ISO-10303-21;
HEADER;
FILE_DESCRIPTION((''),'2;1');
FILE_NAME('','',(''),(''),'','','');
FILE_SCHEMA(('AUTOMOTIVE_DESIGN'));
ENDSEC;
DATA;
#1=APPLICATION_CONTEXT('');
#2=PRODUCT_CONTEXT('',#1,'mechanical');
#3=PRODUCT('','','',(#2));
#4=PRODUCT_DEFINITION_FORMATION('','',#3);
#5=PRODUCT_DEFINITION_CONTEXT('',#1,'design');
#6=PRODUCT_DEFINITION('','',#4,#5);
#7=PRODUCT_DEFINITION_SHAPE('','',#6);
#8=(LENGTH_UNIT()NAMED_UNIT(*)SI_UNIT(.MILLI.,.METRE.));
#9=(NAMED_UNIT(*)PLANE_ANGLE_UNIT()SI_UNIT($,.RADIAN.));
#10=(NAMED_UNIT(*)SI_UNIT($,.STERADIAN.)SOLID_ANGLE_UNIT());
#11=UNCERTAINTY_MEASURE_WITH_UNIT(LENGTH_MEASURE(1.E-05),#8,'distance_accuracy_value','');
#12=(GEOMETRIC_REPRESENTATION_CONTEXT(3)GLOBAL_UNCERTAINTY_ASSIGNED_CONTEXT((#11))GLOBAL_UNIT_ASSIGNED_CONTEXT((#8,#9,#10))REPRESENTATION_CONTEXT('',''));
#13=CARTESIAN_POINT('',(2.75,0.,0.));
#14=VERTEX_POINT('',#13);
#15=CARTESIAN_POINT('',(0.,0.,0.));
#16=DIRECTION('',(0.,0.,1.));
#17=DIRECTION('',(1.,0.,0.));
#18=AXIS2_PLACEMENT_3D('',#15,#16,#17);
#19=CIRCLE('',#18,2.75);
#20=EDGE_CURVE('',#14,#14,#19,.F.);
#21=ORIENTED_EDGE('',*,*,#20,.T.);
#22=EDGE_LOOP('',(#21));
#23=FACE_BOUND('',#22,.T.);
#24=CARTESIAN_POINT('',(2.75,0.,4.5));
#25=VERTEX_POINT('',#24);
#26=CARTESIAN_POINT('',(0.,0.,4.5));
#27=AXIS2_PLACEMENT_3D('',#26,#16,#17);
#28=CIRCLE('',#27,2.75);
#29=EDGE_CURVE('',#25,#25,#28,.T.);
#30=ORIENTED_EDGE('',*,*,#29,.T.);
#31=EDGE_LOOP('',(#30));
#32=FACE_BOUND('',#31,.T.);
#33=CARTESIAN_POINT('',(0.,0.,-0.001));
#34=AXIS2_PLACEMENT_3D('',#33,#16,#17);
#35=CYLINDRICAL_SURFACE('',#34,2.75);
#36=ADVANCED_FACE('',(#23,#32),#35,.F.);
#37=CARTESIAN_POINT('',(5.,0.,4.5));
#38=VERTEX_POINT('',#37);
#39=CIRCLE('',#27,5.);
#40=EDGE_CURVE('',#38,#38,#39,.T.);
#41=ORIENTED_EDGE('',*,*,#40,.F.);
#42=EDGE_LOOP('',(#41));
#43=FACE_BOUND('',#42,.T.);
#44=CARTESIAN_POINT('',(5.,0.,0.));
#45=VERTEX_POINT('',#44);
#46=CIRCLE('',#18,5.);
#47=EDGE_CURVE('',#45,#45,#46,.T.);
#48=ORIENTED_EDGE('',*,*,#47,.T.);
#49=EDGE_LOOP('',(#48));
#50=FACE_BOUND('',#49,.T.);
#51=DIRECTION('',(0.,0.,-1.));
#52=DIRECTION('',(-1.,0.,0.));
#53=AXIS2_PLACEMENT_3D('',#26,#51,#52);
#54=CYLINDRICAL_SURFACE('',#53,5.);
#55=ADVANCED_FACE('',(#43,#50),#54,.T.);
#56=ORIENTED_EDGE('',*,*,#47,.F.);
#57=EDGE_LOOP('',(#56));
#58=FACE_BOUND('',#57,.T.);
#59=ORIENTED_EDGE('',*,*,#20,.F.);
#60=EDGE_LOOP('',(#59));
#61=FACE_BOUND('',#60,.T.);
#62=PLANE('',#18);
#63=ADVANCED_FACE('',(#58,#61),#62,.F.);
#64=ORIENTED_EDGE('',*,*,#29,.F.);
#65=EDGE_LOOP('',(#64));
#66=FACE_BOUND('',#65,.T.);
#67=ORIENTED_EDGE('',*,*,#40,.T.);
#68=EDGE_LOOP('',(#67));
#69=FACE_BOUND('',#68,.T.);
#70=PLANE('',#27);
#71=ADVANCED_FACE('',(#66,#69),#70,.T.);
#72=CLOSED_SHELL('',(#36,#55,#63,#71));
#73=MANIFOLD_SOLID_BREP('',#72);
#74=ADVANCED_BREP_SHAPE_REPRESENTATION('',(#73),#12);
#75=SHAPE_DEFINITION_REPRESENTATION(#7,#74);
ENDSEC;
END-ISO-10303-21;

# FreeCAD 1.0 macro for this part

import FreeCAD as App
import Part
import Sketcher
from FreeCAD import Vector

doc = App.newDocument("Part")
body = doc.addObject("PartDesign::Body", "Body")

# Sketch on XY plane
sketch1 = body.newObject("Sketcher::SketchObject", "Sketch")
sketch1.AttachmentSupport = (doc.getObject("XY_Plane"), [""])
sketch1.MapMode = "FlatFace"
sketch1.addGeometry(Part.Circle(Vector(0, 0, 0), Vector(0, 0, 1), 5), False)
sketch1.addConstraint(Sketcher.Constraint("Coincident", 0, 3, -1, 1))
sketch1.addConstraint(Sketcher.Constraint("Diameter", 0, 10.0))
pad1 = body.newObject("PartDesign::Pad", "Pad")
pad1.Profile = sketch1
pad1.Length = 4.5

# Sketch on XY plane
sketch2 = body.newObject("Sketcher::SketchObject", "Sketch001")
sketch2.AttachmentSupport = (doc.getObject("XY_Plane"), [""])
sketch2.MapMode = "FlatFace"
sketch2.AttachmentOffset = App.Placement(Vector(0, 0, 4.5), App.Rotation())
sketch2.addGeometry(Part.Circle(Vector(0, 0, 0), Vector(0, 0, 1), 2.8), False)
sketch2.addConstraint(Sketcher.Constraint("Coincident", 0, 3, -1, 1))
sketch2.addConstraint(Sketcher.Constraint("Diameter", 0, 5.5))
pocket1 = body.newObject("PartDesign::Pocket", "Pocket")
pocket1.Profile = sketch2
pocket1.Type = "UpToFirst"

doc.recompute()
